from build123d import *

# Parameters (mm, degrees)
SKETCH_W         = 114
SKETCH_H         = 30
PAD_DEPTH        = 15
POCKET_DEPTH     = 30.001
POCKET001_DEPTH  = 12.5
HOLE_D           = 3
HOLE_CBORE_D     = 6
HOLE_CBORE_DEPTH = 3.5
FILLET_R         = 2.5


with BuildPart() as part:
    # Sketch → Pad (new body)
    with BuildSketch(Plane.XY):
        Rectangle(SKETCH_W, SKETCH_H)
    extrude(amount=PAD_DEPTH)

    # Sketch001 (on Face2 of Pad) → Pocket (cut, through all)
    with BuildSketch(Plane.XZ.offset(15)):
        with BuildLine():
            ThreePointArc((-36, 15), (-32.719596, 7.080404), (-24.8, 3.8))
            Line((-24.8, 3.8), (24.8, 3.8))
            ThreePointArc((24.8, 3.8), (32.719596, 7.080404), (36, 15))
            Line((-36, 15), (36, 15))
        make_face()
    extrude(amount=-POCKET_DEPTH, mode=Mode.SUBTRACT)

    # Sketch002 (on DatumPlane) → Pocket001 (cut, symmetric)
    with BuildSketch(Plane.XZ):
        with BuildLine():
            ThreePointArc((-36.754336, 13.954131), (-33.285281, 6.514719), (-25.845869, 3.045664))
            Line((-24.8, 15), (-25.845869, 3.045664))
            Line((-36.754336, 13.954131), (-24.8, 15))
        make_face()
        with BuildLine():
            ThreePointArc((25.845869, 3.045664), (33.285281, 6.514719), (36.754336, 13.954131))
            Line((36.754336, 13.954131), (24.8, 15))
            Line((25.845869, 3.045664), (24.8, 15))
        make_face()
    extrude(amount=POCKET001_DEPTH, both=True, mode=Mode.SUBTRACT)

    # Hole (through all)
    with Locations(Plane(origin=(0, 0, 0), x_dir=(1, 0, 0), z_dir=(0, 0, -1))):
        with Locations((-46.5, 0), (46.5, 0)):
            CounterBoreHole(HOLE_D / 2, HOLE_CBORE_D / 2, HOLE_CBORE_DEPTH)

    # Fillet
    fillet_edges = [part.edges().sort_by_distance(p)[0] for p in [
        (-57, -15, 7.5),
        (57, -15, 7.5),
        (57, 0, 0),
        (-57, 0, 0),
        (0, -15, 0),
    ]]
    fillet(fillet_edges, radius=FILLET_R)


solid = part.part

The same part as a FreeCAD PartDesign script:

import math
import FreeCAD as App
import Part
import Sketcher

V = App.Vector
Q = App.Units.Quantity


def edges_at(feature, points):
    """Names of the edges that pass closest to the given points."""
    edges = feature.Shape.Edges
    near = lambda p: min(range(len(edges)), key=lambda i: edges[i].distToShape(Part.Vertex(*p))[0])
    return sorted({f"Edge{near(p) + 1}" for p in points})


def add_polygon(sketch, points):
    """Adds a closed chain of lines whose ends are joined by coincident constraints."""
    first, n = sketch.GeometryCount, len(points)
    for a, b in zip(points, points[1:] + points[:1]):
        sketch.addGeometry(Part.LineSegment(App.Vector(*a, 0), App.Vector(*b, 0)), False)
    for i in range(n):
        sketch.addConstraint(Sketcher.Constraint("Coincident", first + i, 2, first + (i + 1) % n, 1))

doc = App.newDocument("Part")
body = doc.addObject("PartDesign::Body", "Body")

# Sketch on XY plane
sketch1 = doc.addObject("Sketcher::SketchObject", "Sketch")
body.addObject(sketch1)
sketch1.AttachmentSupport = (doc.XY_Plane, [""])
sketch1.MapMode = "FlatFace"
add_polygon(sketch1, [(-57, 15), (-57, -15), (57, -15), (57, 15)])  # lines 0-3
sketch1.addConstraint(Sketcher.Constraint("Vertical", 0))
sketch1.addConstraint(Sketcher.Constraint("Horizontal", 1))
sketch1.addConstraint(Sketcher.Constraint("Vertical", 2))
sketch1.addConstraint(Sketcher.Constraint("Horizontal", 3))
sketch1.addConstraint(Sketcher.Constraint("Symmetric", 0, 2, 2, 2, -1, 1))
sketch1.addConstraint(Sketcher.Constraint("DistanceX", 1, 1, 1, 2, 114.0))
sketch1.addConstraint(Sketcher.Constraint("DistanceY", 0, 2, 0, 1, 30.0))
pad1 = doc.addObject("PartDesign::Pad", "Pad")
body.addObject(pad1)
pad1.Profile = sketch1
pad1.Length = 15

# Sketch on XZ plane
sketch2 = doc.addObject("Sketcher::SketchObject", "Sketch001")
body.addObject(sketch2)
sketch2.AttachmentSupport = (doc.XZ_Plane, [""])
sketch2.MapMode = "FlatFace"
sketch2.AttachmentOffset = App.Placement(V(0, 0, 15), App.Rotation())
sketch2.addGeometry(Part.ArcOfCircle(Part.Circle(V(-24.8, 15, 0), V(0, 0, 1), 11.2), math.radians(179.999999), math.radians(270.000001)), False)
sketch2.addGeometry(Part.LineSegment(V(-24.8, 3.8, 0), V(24.8, 3.8, 0)), False)
sketch2.addGeometry(Part.ArcOfCircle(Part.Circle(V(24.8, 15, 0), V(0, 0, 1), 11.2), math.radians(-90.000001), math.radians(0.000001)), False)
sketch2.addGeometry(Part.LineSegment(V(36, 15, 0), V(-36, 15, 0)), False)
sketch2.addConstraint(Sketcher.Constraint("Tangent", 0, 2, 1, 1))
sketch2.addConstraint(Sketcher.Constraint("Tangent", 1, 2, 2, 1))
sketch2.addConstraint(Sketcher.Constraint("Coincident", 2, 2, 3, 1))
sketch2.addConstraint(Sketcher.Constraint("Coincident", 3, 2, 0, 1))
sketch2.addConstraint(Sketcher.Constraint("Horizontal", 1))
sketch2.addConstraint(Sketcher.Constraint("Horizontal", 3))
sketch2.addConstraint(Sketcher.Constraint("Equal", 0, 2))
sketch2.addConstraint(Sketcher.Constraint("Horizontal", 0, 3, 2, 2))
sketch2.addConstraint(Sketcher.Constraint("Radius", 0, 11.2))
sketch2.addConstraint(Sketcher.Constraint("DistanceX", 3, 2, 3, 1, 72.0))
sketch2.addConstraint(Sketcher.Constraint("DistanceY", -1, 1, 0, 3, 15.0))
sketch2.addConstraint(Sketcher.Constraint("DistanceX", -1, 1, 2, 2, 36.0))
pocket1 = doc.addObject("PartDesign::Pocket", "Pocket")
body.addObject(pocket1)
pocket1.Profile = sketch2
pocket1.Type = "ThroughAll"

# Sketch on XZ plane
sketch3 = doc.addObject("Sketcher::SketchObject", "Sketch002")
body.addObject(sketch3)
sketch3.AttachmentSupport = (doc.XZ_Plane, [""])
sketch3.MapMode = "FlatFace"
sketch3.addGeometry(Part.ArcOfCircle(Part.Circle(V(-24.8, 15, 0), V(0, 0, 1), 12), math.radians(-174.999997), math.radians(-95.000003)), False)
sketch3.addGeometry(Part.LineSegment(V(-25.845869, 3.045664, 0), V(-24.8, 15, 0)), False)
sketch3.addGeometry(Part.LineSegment(V(-24.8, 15, 0), V(-36.754336, 13.954131, 0)), False)
sketch3.addGeometry(Part.ArcOfCircle(Part.Circle(V(24.8, 15, 0), V(0, 0, 1), 12), math.radians(-84.999997), math.radians(-5.000003)), False)
sketch3.addGeometry(Part.LineSegment(V(36.754336, 13.954131, 0), V(24.8, 15, 0)), False)
sketch3.addGeometry(Part.LineSegment(V(24.8, 15, 0), V(25.845869, 3.045664, 0)), False)
sketch3.addConstraint(Sketcher.Constraint("Coincident", 0, 2, 1, 1))
sketch3.addConstraint(Sketcher.Constraint("Coincident", 1, 2, 2, 1))
sketch3.addConstraint(Sketcher.Constraint("Coincident", 2, 2, 0, 1))
sketch3.addConstraint(Sketcher.Constraint("Coincident", 3, 2, 4, 1))
sketch3.addConstraint(Sketcher.Constraint("Coincident", 4, 2, 5, 1))
sketch3.addConstraint(Sketcher.Constraint("Coincident", 5, 2, 3, 1))
sketch3.addConstraint(Sketcher.Constraint("Coincident", 1, 2, 0, 3))
sketch3.addConstraint(Sketcher.Constraint("Coincident", 4, 2, 3, 3))
sketch3.addConstraint(Sketcher.Constraint("Equal", 0, 3))
sketch3.addConstraint(Sketcher.Constraint("Symmetric", 0, 3, 3, 3, -2))
sketch3.addConstraint(Sketcher.Constraint("Perpendicular", 1, 4))
sketch3.addConstraint(Sketcher.Constraint("Perpendicular", 2, 5))
sketch3.addConstraint(Sketcher.Constraint("Horizontal", 2, 2, 3, 2))
sketch3.addConstraint(Sketcher.Constraint("Radius", 0, 12.0))
sketch3.addConstraint(Sketcher.Constraint("Angle", 1, Q("84.999999 deg")))
sketch3.addConstraint(Sketcher.Constraint("DistanceY", -1, 1, 0, 3, 15.0))
sketch3.addConstraint(Sketcher.Constraint("DistanceX", 0, 3, -1, 1, 24.8))
pocket2 = doc.addObject("PartDesign::Pocket", "Pocket001")
body.addObject(pocket2)
pocket2.Profile = sketch3
pocket2.Length = 25
pocket2.Midplane = True

# Sketch on XY plane
sketch4 = doc.addObject("Sketcher::SketchObject", "Sketch003")
body.addObject(sketch4)
sketch4.AttachmentSupport = (doc.XY_Plane, [""])
sketch4.MapMode = "FlatFace"
sketch4.addGeometry(Part.Circle(V(-46.5, 0, 0), V(0, 0, 1), 1.5), False)
sketch4.addGeometry(Part.Circle(V(46.5, 0, 0), V(0, 0, 1), 1.5), False)
sketch4.addConstraint(Sketcher.Constraint("Equal", 0, 1))
sketch4.addConstraint(Sketcher.Constraint("Symmetric", 0, 3, 1, 3, -1, 1))
sketch4.addConstraint(Sketcher.Constraint("PointOnObject", 0, 3, -1))
sketch4.addConstraint(Sketcher.Constraint("Diameter", 0, 3.0))
sketch4.addConstraint(Sketcher.Constraint("DistanceX", 0, 3, 1, 3, 93.0))
doc.recompute()
hole = doc.addObject("PartDesign::Hole", "Hole")
body.addObject(hole)
hole.Profile = sketch4
hole.ThreadType = "None"
hole.Diameter = 3
hole.DepthType = "ThroughAll"
hole.HoleCutType = "Counterbore"
hole.HoleCutDiameter = 6
hole.HoleCutDepth = 3.5
hole.Reversed = True
doc.recompute()

fillet = doc.addObject("PartDesign::Fillet", "Fillet")
body.addObject(fillet)
fillet.Base = (hole, edges_at(hole, [
    (-57, -15, 7.5),
    (57, -15, 7.5),
    (57, 0, 0),
    (-57, 0, 0),
    (0, -15, 0),
]))
fillet.Radius = 2.5

doc.recompute()
